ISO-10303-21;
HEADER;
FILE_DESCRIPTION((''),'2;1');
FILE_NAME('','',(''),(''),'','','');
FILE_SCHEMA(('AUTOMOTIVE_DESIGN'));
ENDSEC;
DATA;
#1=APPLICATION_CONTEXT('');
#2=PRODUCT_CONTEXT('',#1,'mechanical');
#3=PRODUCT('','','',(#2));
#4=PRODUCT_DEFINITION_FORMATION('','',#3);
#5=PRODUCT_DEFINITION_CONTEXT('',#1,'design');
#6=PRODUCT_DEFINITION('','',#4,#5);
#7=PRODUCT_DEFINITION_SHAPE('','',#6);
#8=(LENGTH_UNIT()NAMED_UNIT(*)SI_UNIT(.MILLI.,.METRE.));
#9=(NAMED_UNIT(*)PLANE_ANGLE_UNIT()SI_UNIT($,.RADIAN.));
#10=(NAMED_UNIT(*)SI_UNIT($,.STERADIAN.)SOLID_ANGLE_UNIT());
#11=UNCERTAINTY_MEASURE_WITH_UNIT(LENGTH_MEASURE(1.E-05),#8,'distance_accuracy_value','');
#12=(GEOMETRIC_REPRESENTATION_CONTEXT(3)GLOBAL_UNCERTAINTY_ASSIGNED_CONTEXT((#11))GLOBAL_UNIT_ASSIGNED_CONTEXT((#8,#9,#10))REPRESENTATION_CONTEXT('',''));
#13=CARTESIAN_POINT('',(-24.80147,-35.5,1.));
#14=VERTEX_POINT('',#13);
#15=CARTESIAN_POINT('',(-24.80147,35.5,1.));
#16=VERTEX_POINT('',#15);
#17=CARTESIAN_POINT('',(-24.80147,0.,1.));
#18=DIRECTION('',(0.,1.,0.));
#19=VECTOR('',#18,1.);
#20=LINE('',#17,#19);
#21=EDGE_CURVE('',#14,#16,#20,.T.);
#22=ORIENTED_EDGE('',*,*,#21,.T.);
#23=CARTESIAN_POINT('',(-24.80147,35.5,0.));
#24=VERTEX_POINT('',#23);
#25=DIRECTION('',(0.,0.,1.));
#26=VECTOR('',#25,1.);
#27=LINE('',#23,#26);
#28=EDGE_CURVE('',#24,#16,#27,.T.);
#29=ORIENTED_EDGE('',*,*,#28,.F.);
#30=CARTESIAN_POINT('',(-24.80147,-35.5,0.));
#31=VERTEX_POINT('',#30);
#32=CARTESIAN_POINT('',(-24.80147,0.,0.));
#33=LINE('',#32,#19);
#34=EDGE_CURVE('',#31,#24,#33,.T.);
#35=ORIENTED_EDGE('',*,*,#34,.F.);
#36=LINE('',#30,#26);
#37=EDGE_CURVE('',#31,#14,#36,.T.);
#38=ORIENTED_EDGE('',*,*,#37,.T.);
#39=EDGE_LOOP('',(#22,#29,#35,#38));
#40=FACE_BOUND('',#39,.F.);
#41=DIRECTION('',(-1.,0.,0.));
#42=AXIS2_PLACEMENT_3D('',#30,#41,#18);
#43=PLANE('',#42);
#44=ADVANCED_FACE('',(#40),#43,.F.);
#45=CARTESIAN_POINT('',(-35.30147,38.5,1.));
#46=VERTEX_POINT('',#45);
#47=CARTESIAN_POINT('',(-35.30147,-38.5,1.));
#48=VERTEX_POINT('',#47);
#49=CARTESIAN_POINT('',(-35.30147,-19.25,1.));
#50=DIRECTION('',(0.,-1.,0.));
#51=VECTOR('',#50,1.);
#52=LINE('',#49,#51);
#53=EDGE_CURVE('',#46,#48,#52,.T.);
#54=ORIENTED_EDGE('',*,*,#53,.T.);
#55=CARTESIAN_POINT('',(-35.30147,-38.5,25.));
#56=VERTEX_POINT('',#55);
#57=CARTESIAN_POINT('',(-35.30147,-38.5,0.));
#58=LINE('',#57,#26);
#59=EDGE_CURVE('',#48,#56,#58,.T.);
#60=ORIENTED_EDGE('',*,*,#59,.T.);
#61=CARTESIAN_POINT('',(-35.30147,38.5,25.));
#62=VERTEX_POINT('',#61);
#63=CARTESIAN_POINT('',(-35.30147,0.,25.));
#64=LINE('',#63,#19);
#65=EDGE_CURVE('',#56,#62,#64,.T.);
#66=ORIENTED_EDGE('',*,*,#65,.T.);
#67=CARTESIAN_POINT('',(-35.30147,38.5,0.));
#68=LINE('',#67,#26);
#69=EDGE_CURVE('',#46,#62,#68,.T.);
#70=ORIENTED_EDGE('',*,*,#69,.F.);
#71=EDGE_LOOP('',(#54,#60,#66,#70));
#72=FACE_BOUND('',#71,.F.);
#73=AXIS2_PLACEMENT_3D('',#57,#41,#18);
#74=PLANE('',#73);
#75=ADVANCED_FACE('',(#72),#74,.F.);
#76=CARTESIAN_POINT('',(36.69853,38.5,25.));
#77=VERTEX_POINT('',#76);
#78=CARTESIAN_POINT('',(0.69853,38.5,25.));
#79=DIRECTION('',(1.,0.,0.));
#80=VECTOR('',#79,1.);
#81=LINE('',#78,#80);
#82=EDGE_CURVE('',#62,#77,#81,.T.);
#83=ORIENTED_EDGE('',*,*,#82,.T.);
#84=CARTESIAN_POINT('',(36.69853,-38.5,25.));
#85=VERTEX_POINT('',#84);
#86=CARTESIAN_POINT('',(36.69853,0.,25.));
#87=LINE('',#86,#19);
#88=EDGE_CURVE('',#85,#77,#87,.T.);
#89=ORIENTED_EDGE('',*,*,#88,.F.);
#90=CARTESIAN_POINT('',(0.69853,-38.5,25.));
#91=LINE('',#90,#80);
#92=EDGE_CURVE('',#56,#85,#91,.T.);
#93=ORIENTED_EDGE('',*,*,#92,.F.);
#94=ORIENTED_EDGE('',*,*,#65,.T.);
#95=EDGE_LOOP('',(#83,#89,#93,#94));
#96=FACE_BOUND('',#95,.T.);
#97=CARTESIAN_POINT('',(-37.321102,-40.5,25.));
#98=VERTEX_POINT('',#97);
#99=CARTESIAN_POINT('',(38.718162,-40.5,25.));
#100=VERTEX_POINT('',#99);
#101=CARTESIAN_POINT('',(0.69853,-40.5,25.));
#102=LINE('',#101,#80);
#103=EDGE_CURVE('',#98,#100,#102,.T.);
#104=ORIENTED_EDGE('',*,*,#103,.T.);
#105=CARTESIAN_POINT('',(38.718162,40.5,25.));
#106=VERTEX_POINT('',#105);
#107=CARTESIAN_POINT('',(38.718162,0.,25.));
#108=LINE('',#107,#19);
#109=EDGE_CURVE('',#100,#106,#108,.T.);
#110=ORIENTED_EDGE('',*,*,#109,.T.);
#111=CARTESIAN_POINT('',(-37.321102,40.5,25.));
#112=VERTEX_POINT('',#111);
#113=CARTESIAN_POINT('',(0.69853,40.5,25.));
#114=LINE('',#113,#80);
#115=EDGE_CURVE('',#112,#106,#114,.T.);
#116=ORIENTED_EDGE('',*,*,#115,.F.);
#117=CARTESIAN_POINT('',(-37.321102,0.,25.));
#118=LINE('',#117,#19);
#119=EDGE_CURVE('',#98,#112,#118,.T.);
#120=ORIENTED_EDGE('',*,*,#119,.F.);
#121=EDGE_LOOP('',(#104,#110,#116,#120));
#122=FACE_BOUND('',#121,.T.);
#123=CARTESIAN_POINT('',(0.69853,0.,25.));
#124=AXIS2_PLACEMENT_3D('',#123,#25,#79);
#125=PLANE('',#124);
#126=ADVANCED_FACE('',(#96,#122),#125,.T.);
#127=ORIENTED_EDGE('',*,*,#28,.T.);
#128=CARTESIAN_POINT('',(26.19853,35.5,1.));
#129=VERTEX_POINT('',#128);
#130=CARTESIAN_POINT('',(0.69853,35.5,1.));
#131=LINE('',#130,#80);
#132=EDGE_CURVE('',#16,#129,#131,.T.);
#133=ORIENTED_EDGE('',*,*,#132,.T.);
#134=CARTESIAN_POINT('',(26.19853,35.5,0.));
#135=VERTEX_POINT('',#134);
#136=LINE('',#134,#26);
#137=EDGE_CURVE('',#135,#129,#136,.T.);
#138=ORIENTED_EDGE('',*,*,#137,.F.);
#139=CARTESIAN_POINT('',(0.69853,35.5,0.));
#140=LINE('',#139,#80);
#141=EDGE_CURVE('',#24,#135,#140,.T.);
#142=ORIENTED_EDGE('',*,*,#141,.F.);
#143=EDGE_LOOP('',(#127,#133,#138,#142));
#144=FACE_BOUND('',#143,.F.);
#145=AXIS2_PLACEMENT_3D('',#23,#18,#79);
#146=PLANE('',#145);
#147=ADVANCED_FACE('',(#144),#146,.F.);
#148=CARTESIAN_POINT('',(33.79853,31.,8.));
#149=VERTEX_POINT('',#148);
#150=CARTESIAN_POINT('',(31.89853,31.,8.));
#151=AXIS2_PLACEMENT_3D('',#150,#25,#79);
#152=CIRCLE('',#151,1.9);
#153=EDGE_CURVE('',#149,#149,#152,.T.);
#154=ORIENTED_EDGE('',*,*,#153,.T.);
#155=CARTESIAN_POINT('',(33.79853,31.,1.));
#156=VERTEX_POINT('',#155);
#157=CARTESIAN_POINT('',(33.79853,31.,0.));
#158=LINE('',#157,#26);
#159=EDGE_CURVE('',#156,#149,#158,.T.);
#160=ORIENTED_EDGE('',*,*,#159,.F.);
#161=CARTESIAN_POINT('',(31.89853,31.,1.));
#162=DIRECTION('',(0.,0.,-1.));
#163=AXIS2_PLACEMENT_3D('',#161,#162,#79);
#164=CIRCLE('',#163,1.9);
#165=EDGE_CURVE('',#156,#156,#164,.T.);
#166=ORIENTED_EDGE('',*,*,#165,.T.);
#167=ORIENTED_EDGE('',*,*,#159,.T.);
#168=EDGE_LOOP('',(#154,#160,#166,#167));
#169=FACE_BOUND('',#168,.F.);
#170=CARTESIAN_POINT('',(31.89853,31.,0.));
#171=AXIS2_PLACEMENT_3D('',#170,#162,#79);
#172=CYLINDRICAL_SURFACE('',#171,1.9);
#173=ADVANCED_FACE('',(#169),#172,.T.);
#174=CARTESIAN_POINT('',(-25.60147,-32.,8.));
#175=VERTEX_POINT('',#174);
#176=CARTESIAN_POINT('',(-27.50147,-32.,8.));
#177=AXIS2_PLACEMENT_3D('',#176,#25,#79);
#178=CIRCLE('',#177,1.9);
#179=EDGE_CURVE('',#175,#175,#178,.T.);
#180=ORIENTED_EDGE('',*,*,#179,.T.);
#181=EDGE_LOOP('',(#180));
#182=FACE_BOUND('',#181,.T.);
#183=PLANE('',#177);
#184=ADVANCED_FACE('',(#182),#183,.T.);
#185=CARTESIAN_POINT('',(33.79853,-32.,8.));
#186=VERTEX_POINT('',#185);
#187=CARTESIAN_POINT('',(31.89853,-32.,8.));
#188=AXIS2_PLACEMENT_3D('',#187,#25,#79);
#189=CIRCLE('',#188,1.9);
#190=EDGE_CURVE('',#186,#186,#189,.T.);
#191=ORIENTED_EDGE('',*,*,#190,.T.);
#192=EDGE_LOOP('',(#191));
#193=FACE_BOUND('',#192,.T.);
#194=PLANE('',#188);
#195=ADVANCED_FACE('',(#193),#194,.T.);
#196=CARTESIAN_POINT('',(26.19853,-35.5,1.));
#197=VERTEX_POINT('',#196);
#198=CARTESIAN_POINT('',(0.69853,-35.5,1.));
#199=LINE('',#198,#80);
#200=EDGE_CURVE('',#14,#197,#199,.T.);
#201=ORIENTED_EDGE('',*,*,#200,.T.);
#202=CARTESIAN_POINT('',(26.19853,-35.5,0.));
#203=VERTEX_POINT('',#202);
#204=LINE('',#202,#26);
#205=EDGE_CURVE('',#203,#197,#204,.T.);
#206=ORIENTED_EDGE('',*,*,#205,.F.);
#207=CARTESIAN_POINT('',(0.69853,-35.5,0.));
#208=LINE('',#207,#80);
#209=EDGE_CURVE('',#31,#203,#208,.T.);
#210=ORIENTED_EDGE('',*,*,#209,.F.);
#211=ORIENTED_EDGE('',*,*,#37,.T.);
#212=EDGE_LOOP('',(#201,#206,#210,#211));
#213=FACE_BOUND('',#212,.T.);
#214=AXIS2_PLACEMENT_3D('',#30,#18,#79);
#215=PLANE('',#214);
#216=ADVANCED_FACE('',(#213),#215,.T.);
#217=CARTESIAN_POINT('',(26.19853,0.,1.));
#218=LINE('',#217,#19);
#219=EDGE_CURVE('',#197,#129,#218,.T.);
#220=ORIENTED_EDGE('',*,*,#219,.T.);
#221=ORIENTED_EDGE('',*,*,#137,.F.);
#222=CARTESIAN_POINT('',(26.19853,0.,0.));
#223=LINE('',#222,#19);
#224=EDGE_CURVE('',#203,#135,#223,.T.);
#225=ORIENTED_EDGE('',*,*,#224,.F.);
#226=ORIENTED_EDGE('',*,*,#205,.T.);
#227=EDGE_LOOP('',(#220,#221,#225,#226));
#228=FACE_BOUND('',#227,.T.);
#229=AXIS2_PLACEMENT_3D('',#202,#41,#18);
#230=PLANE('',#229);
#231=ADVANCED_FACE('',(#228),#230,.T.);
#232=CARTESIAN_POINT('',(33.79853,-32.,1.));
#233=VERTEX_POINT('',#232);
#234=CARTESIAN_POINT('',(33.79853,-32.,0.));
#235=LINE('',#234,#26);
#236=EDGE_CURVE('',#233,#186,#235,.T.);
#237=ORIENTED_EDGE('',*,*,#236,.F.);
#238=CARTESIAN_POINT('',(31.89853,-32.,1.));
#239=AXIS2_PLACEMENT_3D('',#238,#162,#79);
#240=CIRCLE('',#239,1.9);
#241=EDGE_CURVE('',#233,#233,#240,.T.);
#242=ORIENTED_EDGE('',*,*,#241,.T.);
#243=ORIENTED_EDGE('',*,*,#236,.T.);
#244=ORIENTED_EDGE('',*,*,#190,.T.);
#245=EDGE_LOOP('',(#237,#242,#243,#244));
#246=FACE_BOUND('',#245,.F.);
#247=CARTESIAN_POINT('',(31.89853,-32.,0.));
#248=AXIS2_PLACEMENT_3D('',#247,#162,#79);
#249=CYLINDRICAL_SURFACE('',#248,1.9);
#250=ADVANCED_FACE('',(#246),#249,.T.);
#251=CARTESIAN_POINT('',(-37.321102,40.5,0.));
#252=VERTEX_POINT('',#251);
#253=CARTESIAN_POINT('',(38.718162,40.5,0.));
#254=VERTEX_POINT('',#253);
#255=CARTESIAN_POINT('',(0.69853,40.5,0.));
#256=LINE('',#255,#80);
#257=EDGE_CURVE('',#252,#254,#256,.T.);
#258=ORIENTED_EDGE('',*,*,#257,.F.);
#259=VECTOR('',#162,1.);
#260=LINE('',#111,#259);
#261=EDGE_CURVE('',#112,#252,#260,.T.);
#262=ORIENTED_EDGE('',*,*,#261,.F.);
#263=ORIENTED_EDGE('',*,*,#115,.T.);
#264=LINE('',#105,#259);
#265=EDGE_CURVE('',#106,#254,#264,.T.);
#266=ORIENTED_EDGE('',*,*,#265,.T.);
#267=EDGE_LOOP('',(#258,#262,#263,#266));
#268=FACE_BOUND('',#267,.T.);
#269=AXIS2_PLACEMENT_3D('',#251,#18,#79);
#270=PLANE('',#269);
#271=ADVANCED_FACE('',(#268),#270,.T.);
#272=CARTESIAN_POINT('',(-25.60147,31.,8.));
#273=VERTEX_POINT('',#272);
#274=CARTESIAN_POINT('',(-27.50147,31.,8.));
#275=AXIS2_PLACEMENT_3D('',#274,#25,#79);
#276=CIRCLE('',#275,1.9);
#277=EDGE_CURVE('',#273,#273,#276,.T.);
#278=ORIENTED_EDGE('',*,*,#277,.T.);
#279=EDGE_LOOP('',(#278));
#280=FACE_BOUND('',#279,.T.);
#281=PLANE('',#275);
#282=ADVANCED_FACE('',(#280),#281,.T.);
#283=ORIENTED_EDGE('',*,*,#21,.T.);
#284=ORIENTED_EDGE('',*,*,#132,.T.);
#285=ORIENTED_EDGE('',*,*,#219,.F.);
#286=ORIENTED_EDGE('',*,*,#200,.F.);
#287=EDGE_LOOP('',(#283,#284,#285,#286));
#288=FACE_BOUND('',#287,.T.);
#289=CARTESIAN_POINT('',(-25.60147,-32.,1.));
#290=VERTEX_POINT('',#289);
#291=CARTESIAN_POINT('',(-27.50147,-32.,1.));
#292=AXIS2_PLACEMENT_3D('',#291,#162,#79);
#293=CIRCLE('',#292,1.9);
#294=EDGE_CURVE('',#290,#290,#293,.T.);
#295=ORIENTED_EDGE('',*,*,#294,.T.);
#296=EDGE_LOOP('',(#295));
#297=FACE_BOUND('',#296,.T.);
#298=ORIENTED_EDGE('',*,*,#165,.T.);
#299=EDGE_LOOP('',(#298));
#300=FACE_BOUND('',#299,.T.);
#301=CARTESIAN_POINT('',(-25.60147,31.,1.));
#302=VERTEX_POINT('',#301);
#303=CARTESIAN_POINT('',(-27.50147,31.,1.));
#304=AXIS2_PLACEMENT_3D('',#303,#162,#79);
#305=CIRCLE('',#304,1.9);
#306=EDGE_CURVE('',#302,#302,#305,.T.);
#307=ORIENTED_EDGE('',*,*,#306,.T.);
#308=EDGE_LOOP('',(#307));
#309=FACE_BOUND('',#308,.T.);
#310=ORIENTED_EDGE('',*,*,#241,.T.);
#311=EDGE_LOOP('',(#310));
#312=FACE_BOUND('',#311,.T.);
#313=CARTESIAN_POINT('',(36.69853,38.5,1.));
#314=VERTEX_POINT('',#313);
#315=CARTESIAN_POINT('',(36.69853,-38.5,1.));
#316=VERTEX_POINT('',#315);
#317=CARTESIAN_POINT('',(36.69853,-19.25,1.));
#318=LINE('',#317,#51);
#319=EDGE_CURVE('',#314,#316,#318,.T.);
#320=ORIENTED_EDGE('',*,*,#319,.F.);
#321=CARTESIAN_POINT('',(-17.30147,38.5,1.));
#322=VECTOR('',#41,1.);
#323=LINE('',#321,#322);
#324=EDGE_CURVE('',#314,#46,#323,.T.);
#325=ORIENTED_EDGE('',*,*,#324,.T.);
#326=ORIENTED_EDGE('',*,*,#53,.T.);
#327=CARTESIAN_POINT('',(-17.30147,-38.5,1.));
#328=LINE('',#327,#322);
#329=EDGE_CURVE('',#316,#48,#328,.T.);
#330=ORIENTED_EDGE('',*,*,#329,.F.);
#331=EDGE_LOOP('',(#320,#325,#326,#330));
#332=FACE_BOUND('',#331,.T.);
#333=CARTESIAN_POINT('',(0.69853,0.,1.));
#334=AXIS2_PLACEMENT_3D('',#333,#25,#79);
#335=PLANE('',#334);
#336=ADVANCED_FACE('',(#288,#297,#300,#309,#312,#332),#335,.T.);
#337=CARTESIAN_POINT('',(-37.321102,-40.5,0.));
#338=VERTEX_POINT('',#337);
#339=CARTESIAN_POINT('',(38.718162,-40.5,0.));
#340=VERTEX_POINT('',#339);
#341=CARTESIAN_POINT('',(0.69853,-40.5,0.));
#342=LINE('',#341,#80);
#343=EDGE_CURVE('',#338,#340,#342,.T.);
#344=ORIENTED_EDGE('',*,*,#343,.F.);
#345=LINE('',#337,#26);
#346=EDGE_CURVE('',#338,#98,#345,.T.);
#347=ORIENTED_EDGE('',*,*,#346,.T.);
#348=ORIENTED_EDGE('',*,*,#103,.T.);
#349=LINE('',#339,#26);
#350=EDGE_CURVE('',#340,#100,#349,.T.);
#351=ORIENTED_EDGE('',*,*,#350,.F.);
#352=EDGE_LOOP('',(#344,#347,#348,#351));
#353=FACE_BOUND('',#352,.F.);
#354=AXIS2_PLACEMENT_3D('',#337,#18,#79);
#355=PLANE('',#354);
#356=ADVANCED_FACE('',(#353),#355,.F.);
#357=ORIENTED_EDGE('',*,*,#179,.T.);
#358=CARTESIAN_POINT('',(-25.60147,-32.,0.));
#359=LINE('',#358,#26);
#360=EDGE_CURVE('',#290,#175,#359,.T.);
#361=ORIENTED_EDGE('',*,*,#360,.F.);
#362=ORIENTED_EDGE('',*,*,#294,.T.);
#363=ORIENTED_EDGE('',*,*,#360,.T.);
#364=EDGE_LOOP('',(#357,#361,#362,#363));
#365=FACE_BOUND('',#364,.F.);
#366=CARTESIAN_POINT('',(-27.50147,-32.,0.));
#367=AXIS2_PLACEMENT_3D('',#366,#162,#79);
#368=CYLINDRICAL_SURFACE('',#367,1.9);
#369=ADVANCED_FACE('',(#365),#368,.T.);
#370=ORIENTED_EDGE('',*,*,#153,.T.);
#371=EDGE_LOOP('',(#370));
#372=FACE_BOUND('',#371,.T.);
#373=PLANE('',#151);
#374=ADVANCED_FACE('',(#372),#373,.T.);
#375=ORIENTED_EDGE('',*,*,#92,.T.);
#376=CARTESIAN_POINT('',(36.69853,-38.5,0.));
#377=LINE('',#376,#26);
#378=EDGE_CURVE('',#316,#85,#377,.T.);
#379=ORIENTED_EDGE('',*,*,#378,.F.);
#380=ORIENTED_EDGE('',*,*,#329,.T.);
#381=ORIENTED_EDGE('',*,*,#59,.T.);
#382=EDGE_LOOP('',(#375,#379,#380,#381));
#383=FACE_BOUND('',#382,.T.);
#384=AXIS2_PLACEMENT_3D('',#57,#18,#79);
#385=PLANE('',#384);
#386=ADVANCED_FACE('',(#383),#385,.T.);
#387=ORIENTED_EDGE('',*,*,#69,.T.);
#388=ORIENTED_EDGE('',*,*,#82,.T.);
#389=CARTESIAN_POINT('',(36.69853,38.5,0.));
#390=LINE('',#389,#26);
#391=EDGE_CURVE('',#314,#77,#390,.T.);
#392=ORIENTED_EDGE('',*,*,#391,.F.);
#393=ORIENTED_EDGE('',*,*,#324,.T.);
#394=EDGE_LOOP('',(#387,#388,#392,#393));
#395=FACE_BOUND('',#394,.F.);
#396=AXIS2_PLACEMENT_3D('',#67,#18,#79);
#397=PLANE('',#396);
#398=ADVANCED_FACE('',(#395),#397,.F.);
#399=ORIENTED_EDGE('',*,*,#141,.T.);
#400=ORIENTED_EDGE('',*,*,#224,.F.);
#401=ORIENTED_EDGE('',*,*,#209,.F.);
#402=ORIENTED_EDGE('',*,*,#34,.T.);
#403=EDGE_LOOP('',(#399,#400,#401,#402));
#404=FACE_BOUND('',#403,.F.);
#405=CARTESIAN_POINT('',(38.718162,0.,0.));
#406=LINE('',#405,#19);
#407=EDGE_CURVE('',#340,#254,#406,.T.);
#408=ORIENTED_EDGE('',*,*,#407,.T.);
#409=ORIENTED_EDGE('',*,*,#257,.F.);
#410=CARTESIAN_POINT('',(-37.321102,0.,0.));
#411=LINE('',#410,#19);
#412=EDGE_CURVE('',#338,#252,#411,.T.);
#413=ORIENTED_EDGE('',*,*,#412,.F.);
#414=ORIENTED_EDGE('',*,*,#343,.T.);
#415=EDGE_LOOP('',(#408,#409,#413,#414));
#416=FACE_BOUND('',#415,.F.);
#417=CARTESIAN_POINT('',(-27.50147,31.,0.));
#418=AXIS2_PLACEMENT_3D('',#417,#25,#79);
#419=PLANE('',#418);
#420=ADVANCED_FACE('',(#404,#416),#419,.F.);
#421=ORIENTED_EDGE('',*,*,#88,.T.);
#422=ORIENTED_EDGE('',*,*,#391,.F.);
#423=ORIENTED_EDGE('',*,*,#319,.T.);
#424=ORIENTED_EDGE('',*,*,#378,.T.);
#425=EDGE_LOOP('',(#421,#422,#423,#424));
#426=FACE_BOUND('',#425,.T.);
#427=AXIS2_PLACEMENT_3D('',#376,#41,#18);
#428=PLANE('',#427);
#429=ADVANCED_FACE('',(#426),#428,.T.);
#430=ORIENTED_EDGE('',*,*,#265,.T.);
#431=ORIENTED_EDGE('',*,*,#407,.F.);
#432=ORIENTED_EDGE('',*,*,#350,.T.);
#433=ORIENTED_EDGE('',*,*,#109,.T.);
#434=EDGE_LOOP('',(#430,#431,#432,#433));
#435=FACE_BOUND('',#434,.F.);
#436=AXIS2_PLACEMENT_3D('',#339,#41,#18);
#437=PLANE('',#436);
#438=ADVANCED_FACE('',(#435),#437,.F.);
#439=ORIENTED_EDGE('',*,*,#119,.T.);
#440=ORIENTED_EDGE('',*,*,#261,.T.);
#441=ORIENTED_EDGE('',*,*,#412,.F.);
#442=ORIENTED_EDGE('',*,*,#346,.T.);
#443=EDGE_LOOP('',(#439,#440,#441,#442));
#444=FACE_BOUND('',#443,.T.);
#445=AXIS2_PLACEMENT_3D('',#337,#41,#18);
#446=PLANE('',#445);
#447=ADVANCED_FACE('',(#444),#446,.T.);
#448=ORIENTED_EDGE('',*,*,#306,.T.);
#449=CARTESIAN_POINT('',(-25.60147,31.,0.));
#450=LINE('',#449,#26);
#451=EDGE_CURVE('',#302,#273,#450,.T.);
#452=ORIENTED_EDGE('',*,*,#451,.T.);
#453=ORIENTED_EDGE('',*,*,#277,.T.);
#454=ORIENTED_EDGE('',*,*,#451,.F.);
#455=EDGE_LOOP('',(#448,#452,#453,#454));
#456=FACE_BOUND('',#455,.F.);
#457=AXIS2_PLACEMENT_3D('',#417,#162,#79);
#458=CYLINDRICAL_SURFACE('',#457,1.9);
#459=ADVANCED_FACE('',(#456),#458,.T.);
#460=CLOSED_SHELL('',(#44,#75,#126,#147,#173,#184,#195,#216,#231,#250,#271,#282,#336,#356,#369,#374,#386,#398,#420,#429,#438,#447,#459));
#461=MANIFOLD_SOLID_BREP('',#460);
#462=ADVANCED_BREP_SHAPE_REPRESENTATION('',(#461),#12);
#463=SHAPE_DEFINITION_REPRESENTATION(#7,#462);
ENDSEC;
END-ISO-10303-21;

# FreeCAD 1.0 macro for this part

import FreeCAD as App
import Part
import Sketcher

V = App.Vector


def add_polygon(sketch, points):
    """Adds a closed chain of lines whose ends are joined by coincident constraints."""
    first, n = sketch.GeometryCount, len(points)
    for a, b in zip(points, points[1:] + points[:1]):
        sketch.addGeometry(Part.LineSegment(App.Vector(*a, 0), App.Vector(*b, 0)), False)
    for i in range(n):
        sketch.addConstraint(Sketcher.Constraint("Coincident", first + i, 2, first + (i + 1) % n, 1))

doc = App.newDocument("Part")
params = doc.addObject("Spreadsheet::Sheet", "Params")
for row, (alias, value) in enumerate([
    ("sketch1_width", "51 mm"),
    ("sketch1_height", "81 mm"),
    ("sketch1_height2", "71 mm"),
    ("pad1_length", "1 mm"),
    ("sketch2_width", "72 mm"),
    ("sketch2_height", "81 mm"),
    ("sketch2_height2", "77 mm"),
    ("pad2_length", "25 mm"),
    ("sketch3_diameter", "3.8 mm"),
    ("pad3_length", "8 mm"),
], start=1):
    params.set(f"A{row}", alias)
    params.set(f"B{row}", "=" + value)
    params.setAlias(f"B{row}", alias)

body = doc.addObject("PartDesign::Body", "Body")

# Sketch on XY plane
sketch1 = body.newObject("Sketcher::SketchObject", "Sketch")
sketch1.AttachmentSupport = (doc.getObject("XY_Plane"), [""])
sketch1.MapMode = "FlatFace"
add_polygon(sketch1, [(-37, 40), (-37, -40), (39, -40), (39, 40)])  # lines 0-3
add_polygon(sketch1, [(26, -36), (-25, -36), (-25, 36), (26, 36)])  # lines 4-7
sketch1.addConstraint([
    Sketcher.Constraint("Vertical", 0),
    Sketcher.Constraint("Horizontal", 1),
    Sketcher.Constraint("Vertical", 2),
    Sketcher.Constraint("Horizontal", 3),
    Sketcher.Constraint("Horizontal", 4),
    Sketcher.Constraint("Vertical", 5),
    Sketcher.Constraint("Horizontal", 6),
    Sketcher.Constraint("Vertical", 7),
    Sketcher.Constraint("DistanceX", 4, 2, 4, 1, 51.0),
    Sketcher.Constraint("DistanceY", 0, 2, 0, 1, 81.0),
    Sketcher.Constraint("DistanceY", 5, 1, 5, 2, 71.0),
    Sketcher.Constraint("DistanceY", 0, 2, 4, 2, 5.0),
    Sketcher.Constraint("DistanceY", 0, 2, -1, 1, 40.5),
    Sketcher.Constraint("DistanceX", 1, 1, 1, 2, 76.039264),
    Sketcher.Constraint("DistanceX", 4, 2, -1, 1, 24.80147),
    Sketcher.Constraint("DistanceX", 6, 2, 2, 2, 12.519632),
])
sketch1.setExpression("Constraints[16]", "Params.sketch1_width")
sketch1.setExpression("Constraints[17]", "Params.sketch1_height")
sketch1.setExpression("Constraints[18]", "Params.sketch1_height2")
pad1 = body.newObject("PartDesign::Pad", "Pad")
pad1.Profile = sketch1
pad1.setExpression("Length", "Params.pad1_length")

# Sketch on XY plane
sketch2 = body.newObject("Sketcher::SketchObject", "Sketch001")
sketch2.AttachmentSupport = (doc.getObject("XY_Plane"), [""])
sketch2.MapMode = "FlatFace"
add_polygon(sketch2, [(-37, 40), (-37, -40), (39, -40), (39, 40)])  # lines 0-3
add_polygon(sketch2, [(37, -38), (-35, -38), (-35, 38), (37, 38)])  # lines 4-7
sketch2.addConstraint([
    Sketcher.Constraint("Vertical", 0),
    Sketcher.Constraint("Horizontal", 1),
    Sketcher.Constraint("Vertical", 2),
    Sketcher.Constraint("Horizontal", 3),
    Sketcher.Constraint("Horizontal", 4),
    Sketcher.Constraint("Vertical", 5),
    Sketcher.Constraint("Horizontal", 6),
    Sketcher.Constraint("Vertical", 7),
    Sketcher.Constraint("DistanceX", 4, 2, 4, 1, 72.0),
    Sketcher.Constraint("DistanceY", 0, 2, 0, 1, 81.0),
    Sketcher.Constraint("DistanceY", 5, 1, 5, 2, 77.0),
    Sketcher.Constraint("DistanceY", 0, 2, 4, 2, 2.0),
    Sketcher.Constraint("DistanceY", 0, 2, -1, 1, 40.5),
    Sketcher.Constraint("DistanceX", 1, 1, 1, 2, 76.039264),
    Sketcher.Constraint("DistanceX", 4, 2, -1, 1, 35.30147),
    Sketcher.Constraint("DistanceX", 4, 2, 1, 2, 74.019632),
])
sketch2.setExpression("Constraints[16]", "Params.sketch2_width")
sketch2.setExpression("Constraints[17]", "Params.sketch2_height")
sketch2.setExpression("Constraints[18]", "Params.sketch2_height2")
pad2 = body.newObject("PartDesign::Pad", "Pad001")
pad2.Profile = sketch2
pad2.setExpression("Length", "Params.pad2_length")

# Sketch on XY plane
sketch3 = body.newObject("Sketcher::SketchObject", "Sketch002")
sketch3.AttachmentSupport = (doc.getObject("XY_Plane"), [""])
sketch3.MapMode = "FlatFace"
sketch3.addGeometry([
    Part.Circle(V(-27.5, 31, 0), V(0, 0, 1), 1.9),
    Part.Circle(V(31.9, 31, 0), V(0, 0, 1), 1.9),
    Part.Circle(V(-27.5, -32, 0), V(0, 0, 1), 1.9),
    Part.Circle(V(31.9, -32, 0), V(0, 0, 1), 1.9),
], False)
sketch3.addConstraint([
    Sketcher.Constraint("Equal", 0, 1),
    Sketcher.Constraint("Equal", 1, 2),
    Sketcher.Constraint("Equal", 2, 3),
    Sketcher.Constraint("Horizontal", 0, 3, 1, 3),
    Sketcher.Constraint("Horizontal", 2, 3, 3, 3),
    Sketcher.Constraint("Vertical", 0, 3, 2, 3),
    Sketcher.Constraint("Vertical", 1, 3, 3, 3),
    Sketcher.Constraint("Diameter", 0, 3.8),
    Sketcher.Constraint("DistanceY", -1, 1, 0, 3, 31.0),
    Sketcher.Constraint("DistanceY", 2, 3, -1, 1, 32.0),
    Sketcher.Constraint("DistanceX", 0, 3, 1, 3, 59.4),
    Sketcher.Constraint("DistanceX", 0, 3, -1, 1, 27.50147),
])
sketch3.setExpression("Constraints[7]", "Params.sketch3_diameter")
pad3 = body.newObject("PartDesign::Pad", "Pad002")
pad3.Profile = sketch3
pad3.setExpression("Length", "Params.pad3_length")

doc.recompute()
